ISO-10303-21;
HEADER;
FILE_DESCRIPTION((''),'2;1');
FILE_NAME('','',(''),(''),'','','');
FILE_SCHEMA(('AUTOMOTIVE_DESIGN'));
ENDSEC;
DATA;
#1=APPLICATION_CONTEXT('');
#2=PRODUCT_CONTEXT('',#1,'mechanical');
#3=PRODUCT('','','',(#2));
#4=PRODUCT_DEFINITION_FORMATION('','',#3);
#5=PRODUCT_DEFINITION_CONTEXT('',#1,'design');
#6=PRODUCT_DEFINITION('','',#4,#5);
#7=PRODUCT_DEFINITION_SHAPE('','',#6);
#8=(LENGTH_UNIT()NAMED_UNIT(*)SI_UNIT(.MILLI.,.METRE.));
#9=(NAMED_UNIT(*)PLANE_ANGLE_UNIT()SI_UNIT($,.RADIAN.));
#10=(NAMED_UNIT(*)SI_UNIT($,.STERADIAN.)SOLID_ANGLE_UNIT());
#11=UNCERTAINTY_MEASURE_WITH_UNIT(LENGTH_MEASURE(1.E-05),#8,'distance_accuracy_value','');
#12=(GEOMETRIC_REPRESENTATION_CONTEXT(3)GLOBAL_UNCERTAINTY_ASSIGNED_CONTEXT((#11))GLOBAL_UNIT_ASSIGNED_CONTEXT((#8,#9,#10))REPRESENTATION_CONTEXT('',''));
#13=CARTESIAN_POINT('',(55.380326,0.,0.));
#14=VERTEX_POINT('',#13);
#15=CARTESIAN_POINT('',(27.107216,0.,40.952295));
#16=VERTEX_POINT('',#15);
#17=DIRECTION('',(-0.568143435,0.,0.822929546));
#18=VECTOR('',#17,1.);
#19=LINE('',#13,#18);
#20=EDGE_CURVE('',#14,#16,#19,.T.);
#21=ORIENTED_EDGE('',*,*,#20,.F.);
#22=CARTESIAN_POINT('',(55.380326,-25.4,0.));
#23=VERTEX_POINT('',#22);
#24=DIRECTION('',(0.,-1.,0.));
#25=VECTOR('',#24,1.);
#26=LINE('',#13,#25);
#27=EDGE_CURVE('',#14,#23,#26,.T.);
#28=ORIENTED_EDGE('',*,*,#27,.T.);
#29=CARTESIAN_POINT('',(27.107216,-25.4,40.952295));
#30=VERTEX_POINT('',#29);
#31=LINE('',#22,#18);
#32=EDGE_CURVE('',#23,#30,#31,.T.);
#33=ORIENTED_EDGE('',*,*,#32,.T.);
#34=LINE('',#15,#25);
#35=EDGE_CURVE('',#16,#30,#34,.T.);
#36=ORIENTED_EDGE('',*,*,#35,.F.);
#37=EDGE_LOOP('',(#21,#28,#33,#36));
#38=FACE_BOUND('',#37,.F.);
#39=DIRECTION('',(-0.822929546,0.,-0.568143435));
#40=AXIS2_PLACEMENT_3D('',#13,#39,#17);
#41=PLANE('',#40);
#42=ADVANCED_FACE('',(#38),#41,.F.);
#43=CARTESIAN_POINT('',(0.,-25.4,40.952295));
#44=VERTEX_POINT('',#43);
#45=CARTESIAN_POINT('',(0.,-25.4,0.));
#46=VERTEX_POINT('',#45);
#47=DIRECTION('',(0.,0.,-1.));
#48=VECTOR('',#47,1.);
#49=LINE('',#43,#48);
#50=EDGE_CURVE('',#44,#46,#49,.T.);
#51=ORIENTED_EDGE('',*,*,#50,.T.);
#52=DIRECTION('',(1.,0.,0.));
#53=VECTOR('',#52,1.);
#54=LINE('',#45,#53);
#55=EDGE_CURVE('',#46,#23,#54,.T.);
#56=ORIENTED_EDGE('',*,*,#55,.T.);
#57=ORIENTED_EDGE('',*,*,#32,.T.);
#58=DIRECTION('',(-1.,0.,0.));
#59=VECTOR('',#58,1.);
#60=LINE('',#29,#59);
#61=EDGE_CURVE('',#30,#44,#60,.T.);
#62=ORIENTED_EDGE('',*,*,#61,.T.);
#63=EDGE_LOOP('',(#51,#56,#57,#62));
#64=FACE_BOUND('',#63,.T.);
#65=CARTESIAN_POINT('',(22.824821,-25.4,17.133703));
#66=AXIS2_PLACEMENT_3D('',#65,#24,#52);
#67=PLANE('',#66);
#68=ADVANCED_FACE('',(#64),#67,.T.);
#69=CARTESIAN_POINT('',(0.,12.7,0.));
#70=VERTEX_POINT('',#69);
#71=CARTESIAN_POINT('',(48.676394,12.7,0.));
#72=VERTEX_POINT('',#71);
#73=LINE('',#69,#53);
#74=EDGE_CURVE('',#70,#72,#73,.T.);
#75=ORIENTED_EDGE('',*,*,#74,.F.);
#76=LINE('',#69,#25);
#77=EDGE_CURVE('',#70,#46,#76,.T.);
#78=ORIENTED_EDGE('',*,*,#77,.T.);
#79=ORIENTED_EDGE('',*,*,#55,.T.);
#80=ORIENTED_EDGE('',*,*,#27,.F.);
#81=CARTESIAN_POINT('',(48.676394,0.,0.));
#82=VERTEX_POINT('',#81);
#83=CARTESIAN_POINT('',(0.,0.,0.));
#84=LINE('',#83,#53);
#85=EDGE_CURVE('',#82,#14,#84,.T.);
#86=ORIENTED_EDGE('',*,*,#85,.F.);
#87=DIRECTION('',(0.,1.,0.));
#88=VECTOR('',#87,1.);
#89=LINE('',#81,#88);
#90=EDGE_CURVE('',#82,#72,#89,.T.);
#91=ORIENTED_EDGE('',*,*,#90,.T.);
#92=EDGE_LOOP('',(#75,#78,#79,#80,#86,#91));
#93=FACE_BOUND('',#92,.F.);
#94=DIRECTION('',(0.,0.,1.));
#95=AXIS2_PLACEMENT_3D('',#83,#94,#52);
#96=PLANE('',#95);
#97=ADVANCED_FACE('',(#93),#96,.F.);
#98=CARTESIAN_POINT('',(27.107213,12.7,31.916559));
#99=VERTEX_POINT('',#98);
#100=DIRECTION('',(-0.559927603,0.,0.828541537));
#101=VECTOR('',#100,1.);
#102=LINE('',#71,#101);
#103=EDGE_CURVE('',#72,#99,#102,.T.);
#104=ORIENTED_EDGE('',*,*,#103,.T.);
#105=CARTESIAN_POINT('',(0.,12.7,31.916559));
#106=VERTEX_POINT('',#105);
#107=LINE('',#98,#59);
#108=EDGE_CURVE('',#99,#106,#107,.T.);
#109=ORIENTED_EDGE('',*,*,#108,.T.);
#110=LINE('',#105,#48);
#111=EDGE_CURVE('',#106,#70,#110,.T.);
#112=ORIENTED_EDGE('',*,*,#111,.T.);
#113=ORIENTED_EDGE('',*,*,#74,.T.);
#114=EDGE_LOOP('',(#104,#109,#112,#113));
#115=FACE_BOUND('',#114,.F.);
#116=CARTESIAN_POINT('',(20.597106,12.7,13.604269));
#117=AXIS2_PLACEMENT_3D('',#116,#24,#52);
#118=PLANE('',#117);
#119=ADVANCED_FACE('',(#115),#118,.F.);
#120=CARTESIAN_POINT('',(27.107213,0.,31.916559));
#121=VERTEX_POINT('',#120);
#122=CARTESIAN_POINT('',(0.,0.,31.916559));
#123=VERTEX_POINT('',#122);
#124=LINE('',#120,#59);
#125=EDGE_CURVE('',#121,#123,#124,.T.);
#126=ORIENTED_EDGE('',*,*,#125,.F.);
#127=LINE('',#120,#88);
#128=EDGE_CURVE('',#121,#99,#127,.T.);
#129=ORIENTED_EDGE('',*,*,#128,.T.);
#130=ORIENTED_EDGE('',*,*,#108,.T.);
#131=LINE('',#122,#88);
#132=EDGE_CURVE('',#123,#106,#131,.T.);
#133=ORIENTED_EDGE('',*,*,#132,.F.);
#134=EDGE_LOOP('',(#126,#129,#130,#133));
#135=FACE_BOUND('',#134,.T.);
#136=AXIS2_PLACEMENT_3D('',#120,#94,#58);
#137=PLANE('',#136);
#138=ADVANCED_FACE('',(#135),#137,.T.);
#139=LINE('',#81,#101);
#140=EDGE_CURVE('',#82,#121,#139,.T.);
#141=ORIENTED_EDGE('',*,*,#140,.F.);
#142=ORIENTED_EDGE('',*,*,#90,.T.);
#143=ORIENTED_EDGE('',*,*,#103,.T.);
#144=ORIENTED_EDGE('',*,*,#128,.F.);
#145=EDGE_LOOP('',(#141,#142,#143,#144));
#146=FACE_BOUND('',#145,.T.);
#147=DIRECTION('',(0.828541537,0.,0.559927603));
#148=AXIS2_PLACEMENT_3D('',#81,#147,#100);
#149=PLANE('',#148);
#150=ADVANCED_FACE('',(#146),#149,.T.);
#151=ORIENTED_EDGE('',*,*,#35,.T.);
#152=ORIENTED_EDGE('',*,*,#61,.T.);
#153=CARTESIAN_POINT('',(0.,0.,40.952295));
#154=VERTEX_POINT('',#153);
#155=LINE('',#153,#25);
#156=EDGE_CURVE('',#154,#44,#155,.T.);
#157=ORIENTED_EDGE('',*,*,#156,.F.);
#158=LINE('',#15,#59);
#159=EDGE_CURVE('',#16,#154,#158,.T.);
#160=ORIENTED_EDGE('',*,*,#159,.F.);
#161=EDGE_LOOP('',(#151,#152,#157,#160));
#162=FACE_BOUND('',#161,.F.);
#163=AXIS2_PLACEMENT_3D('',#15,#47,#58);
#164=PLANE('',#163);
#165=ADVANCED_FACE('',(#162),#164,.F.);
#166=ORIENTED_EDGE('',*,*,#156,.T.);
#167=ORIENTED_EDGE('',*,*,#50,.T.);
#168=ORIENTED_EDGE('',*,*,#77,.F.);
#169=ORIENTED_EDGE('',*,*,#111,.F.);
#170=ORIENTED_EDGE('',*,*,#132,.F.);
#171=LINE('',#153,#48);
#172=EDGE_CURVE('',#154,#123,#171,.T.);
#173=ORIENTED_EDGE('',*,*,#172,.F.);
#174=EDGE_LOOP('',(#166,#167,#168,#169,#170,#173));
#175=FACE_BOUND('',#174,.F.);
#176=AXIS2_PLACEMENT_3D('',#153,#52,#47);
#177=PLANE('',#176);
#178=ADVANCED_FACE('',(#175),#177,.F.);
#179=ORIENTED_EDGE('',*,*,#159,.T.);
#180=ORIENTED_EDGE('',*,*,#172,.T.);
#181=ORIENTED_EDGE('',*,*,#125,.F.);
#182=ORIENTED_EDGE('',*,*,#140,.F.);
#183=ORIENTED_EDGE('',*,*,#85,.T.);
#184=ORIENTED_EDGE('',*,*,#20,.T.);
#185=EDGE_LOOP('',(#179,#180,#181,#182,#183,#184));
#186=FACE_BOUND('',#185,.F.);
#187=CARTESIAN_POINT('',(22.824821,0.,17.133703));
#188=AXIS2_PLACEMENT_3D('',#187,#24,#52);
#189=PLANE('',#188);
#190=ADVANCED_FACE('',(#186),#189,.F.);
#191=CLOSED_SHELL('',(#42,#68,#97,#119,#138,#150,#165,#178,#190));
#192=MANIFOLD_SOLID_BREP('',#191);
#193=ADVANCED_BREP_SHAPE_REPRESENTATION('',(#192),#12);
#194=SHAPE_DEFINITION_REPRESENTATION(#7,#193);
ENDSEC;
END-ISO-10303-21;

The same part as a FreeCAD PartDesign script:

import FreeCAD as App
import Part
import Sketcher

V = App.Vector
Q = App.Units.Quantity


def add_polygon(sketch, points):
    """Adds a closed chain of lines whose ends are joined by coincident constraints."""
    first, n = sketch.GeometryCount, len(points)
    for a, b in zip(points, points[1:] + points[:1]):
        sketch.addGeometry(Part.LineSegment(App.Vector(*a, 0), App.Vector(*b, 0)), False)
    for i in range(n):
        sketch.addConstraint(Sketcher.Constraint("Coincident", first + i, 2, first + (i + 1) % n, 1))

doc = App.newDocument("Part")
body = doc.addObject("PartDesign::Body", "Body")

sketch1 = doc.addObject("Sketcher::SketchObject", "Sketch")
body.addObject(sketch1)
sketch1.AttachmentSupport = (doc.XZ_Plane, [""])
sketch1.MapMode = "FlatFace"
add_polygon(sketch1, [(0, 32), (0, 0), (49, 0), (27, 32)])
sketch1.addConstraint([
    Sketcher.Constraint("Vertical", 0),
    Sketcher.Constraint("Horizontal", 1),
    Sketcher.Constraint("Horizontal", 3),
    Sketcher.Constraint("Coincident", 0, 2, -1, 1),
    Sketcher.Constraint("DistanceY", 0, 2, 0, 1, Q("31.916559 mm")),
    Sketcher.Constraint("DistanceX", 1, 1, 1, 2, Q("48.676394 mm")),
    Sketcher.Constraint("DistanceX", 3, 2, 3, 1, Q("27.107213 mm")),
])
pad1 = doc.addObject("PartDesign::Pad", "Pad")
body.addObject(pad1)
pad1.Profile = sketch1
pad1.Length = Q("0.5 in")
pad1.Reversed = True

sketch2 = doc.addObject("Sketcher::SketchObject", "Sketch001")
body.addObject(sketch2)
sketch2.AttachmentSupport = (doc.XZ_Plane, [""])
sketch2.MapMode = "FlatFace"
add_polygon(sketch2, [(0, 41), (0, 0), (55, 0), (27, 41)])
sketch2.addConstraint([
    Sketcher.Constraint("Vertical", 0),
    Sketcher.Constraint("Horizontal", 1),
    Sketcher.Constraint("Horizontal", 3),
    Sketcher.Constraint("Coincident", 0, 2, -1, 1),
    Sketcher.Constraint("DistanceX", 1, 1, 1, 2, Q("55.380326 mm")),
    Sketcher.Constraint("DistanceX", 3, 2, 3, 1, Q("27.107216 mm")),
    Sketcher.Constraint("DistanceY", 0, 2, 0, 1, Q("40.952295 mm")),
])
pad2 = doc.addObject("PartDesign::Pad", "Pad001")
body.addObject(pad2)
pad2.Profile = sketch2
pad2.Length = Q("1 in")

doc.recompute()
